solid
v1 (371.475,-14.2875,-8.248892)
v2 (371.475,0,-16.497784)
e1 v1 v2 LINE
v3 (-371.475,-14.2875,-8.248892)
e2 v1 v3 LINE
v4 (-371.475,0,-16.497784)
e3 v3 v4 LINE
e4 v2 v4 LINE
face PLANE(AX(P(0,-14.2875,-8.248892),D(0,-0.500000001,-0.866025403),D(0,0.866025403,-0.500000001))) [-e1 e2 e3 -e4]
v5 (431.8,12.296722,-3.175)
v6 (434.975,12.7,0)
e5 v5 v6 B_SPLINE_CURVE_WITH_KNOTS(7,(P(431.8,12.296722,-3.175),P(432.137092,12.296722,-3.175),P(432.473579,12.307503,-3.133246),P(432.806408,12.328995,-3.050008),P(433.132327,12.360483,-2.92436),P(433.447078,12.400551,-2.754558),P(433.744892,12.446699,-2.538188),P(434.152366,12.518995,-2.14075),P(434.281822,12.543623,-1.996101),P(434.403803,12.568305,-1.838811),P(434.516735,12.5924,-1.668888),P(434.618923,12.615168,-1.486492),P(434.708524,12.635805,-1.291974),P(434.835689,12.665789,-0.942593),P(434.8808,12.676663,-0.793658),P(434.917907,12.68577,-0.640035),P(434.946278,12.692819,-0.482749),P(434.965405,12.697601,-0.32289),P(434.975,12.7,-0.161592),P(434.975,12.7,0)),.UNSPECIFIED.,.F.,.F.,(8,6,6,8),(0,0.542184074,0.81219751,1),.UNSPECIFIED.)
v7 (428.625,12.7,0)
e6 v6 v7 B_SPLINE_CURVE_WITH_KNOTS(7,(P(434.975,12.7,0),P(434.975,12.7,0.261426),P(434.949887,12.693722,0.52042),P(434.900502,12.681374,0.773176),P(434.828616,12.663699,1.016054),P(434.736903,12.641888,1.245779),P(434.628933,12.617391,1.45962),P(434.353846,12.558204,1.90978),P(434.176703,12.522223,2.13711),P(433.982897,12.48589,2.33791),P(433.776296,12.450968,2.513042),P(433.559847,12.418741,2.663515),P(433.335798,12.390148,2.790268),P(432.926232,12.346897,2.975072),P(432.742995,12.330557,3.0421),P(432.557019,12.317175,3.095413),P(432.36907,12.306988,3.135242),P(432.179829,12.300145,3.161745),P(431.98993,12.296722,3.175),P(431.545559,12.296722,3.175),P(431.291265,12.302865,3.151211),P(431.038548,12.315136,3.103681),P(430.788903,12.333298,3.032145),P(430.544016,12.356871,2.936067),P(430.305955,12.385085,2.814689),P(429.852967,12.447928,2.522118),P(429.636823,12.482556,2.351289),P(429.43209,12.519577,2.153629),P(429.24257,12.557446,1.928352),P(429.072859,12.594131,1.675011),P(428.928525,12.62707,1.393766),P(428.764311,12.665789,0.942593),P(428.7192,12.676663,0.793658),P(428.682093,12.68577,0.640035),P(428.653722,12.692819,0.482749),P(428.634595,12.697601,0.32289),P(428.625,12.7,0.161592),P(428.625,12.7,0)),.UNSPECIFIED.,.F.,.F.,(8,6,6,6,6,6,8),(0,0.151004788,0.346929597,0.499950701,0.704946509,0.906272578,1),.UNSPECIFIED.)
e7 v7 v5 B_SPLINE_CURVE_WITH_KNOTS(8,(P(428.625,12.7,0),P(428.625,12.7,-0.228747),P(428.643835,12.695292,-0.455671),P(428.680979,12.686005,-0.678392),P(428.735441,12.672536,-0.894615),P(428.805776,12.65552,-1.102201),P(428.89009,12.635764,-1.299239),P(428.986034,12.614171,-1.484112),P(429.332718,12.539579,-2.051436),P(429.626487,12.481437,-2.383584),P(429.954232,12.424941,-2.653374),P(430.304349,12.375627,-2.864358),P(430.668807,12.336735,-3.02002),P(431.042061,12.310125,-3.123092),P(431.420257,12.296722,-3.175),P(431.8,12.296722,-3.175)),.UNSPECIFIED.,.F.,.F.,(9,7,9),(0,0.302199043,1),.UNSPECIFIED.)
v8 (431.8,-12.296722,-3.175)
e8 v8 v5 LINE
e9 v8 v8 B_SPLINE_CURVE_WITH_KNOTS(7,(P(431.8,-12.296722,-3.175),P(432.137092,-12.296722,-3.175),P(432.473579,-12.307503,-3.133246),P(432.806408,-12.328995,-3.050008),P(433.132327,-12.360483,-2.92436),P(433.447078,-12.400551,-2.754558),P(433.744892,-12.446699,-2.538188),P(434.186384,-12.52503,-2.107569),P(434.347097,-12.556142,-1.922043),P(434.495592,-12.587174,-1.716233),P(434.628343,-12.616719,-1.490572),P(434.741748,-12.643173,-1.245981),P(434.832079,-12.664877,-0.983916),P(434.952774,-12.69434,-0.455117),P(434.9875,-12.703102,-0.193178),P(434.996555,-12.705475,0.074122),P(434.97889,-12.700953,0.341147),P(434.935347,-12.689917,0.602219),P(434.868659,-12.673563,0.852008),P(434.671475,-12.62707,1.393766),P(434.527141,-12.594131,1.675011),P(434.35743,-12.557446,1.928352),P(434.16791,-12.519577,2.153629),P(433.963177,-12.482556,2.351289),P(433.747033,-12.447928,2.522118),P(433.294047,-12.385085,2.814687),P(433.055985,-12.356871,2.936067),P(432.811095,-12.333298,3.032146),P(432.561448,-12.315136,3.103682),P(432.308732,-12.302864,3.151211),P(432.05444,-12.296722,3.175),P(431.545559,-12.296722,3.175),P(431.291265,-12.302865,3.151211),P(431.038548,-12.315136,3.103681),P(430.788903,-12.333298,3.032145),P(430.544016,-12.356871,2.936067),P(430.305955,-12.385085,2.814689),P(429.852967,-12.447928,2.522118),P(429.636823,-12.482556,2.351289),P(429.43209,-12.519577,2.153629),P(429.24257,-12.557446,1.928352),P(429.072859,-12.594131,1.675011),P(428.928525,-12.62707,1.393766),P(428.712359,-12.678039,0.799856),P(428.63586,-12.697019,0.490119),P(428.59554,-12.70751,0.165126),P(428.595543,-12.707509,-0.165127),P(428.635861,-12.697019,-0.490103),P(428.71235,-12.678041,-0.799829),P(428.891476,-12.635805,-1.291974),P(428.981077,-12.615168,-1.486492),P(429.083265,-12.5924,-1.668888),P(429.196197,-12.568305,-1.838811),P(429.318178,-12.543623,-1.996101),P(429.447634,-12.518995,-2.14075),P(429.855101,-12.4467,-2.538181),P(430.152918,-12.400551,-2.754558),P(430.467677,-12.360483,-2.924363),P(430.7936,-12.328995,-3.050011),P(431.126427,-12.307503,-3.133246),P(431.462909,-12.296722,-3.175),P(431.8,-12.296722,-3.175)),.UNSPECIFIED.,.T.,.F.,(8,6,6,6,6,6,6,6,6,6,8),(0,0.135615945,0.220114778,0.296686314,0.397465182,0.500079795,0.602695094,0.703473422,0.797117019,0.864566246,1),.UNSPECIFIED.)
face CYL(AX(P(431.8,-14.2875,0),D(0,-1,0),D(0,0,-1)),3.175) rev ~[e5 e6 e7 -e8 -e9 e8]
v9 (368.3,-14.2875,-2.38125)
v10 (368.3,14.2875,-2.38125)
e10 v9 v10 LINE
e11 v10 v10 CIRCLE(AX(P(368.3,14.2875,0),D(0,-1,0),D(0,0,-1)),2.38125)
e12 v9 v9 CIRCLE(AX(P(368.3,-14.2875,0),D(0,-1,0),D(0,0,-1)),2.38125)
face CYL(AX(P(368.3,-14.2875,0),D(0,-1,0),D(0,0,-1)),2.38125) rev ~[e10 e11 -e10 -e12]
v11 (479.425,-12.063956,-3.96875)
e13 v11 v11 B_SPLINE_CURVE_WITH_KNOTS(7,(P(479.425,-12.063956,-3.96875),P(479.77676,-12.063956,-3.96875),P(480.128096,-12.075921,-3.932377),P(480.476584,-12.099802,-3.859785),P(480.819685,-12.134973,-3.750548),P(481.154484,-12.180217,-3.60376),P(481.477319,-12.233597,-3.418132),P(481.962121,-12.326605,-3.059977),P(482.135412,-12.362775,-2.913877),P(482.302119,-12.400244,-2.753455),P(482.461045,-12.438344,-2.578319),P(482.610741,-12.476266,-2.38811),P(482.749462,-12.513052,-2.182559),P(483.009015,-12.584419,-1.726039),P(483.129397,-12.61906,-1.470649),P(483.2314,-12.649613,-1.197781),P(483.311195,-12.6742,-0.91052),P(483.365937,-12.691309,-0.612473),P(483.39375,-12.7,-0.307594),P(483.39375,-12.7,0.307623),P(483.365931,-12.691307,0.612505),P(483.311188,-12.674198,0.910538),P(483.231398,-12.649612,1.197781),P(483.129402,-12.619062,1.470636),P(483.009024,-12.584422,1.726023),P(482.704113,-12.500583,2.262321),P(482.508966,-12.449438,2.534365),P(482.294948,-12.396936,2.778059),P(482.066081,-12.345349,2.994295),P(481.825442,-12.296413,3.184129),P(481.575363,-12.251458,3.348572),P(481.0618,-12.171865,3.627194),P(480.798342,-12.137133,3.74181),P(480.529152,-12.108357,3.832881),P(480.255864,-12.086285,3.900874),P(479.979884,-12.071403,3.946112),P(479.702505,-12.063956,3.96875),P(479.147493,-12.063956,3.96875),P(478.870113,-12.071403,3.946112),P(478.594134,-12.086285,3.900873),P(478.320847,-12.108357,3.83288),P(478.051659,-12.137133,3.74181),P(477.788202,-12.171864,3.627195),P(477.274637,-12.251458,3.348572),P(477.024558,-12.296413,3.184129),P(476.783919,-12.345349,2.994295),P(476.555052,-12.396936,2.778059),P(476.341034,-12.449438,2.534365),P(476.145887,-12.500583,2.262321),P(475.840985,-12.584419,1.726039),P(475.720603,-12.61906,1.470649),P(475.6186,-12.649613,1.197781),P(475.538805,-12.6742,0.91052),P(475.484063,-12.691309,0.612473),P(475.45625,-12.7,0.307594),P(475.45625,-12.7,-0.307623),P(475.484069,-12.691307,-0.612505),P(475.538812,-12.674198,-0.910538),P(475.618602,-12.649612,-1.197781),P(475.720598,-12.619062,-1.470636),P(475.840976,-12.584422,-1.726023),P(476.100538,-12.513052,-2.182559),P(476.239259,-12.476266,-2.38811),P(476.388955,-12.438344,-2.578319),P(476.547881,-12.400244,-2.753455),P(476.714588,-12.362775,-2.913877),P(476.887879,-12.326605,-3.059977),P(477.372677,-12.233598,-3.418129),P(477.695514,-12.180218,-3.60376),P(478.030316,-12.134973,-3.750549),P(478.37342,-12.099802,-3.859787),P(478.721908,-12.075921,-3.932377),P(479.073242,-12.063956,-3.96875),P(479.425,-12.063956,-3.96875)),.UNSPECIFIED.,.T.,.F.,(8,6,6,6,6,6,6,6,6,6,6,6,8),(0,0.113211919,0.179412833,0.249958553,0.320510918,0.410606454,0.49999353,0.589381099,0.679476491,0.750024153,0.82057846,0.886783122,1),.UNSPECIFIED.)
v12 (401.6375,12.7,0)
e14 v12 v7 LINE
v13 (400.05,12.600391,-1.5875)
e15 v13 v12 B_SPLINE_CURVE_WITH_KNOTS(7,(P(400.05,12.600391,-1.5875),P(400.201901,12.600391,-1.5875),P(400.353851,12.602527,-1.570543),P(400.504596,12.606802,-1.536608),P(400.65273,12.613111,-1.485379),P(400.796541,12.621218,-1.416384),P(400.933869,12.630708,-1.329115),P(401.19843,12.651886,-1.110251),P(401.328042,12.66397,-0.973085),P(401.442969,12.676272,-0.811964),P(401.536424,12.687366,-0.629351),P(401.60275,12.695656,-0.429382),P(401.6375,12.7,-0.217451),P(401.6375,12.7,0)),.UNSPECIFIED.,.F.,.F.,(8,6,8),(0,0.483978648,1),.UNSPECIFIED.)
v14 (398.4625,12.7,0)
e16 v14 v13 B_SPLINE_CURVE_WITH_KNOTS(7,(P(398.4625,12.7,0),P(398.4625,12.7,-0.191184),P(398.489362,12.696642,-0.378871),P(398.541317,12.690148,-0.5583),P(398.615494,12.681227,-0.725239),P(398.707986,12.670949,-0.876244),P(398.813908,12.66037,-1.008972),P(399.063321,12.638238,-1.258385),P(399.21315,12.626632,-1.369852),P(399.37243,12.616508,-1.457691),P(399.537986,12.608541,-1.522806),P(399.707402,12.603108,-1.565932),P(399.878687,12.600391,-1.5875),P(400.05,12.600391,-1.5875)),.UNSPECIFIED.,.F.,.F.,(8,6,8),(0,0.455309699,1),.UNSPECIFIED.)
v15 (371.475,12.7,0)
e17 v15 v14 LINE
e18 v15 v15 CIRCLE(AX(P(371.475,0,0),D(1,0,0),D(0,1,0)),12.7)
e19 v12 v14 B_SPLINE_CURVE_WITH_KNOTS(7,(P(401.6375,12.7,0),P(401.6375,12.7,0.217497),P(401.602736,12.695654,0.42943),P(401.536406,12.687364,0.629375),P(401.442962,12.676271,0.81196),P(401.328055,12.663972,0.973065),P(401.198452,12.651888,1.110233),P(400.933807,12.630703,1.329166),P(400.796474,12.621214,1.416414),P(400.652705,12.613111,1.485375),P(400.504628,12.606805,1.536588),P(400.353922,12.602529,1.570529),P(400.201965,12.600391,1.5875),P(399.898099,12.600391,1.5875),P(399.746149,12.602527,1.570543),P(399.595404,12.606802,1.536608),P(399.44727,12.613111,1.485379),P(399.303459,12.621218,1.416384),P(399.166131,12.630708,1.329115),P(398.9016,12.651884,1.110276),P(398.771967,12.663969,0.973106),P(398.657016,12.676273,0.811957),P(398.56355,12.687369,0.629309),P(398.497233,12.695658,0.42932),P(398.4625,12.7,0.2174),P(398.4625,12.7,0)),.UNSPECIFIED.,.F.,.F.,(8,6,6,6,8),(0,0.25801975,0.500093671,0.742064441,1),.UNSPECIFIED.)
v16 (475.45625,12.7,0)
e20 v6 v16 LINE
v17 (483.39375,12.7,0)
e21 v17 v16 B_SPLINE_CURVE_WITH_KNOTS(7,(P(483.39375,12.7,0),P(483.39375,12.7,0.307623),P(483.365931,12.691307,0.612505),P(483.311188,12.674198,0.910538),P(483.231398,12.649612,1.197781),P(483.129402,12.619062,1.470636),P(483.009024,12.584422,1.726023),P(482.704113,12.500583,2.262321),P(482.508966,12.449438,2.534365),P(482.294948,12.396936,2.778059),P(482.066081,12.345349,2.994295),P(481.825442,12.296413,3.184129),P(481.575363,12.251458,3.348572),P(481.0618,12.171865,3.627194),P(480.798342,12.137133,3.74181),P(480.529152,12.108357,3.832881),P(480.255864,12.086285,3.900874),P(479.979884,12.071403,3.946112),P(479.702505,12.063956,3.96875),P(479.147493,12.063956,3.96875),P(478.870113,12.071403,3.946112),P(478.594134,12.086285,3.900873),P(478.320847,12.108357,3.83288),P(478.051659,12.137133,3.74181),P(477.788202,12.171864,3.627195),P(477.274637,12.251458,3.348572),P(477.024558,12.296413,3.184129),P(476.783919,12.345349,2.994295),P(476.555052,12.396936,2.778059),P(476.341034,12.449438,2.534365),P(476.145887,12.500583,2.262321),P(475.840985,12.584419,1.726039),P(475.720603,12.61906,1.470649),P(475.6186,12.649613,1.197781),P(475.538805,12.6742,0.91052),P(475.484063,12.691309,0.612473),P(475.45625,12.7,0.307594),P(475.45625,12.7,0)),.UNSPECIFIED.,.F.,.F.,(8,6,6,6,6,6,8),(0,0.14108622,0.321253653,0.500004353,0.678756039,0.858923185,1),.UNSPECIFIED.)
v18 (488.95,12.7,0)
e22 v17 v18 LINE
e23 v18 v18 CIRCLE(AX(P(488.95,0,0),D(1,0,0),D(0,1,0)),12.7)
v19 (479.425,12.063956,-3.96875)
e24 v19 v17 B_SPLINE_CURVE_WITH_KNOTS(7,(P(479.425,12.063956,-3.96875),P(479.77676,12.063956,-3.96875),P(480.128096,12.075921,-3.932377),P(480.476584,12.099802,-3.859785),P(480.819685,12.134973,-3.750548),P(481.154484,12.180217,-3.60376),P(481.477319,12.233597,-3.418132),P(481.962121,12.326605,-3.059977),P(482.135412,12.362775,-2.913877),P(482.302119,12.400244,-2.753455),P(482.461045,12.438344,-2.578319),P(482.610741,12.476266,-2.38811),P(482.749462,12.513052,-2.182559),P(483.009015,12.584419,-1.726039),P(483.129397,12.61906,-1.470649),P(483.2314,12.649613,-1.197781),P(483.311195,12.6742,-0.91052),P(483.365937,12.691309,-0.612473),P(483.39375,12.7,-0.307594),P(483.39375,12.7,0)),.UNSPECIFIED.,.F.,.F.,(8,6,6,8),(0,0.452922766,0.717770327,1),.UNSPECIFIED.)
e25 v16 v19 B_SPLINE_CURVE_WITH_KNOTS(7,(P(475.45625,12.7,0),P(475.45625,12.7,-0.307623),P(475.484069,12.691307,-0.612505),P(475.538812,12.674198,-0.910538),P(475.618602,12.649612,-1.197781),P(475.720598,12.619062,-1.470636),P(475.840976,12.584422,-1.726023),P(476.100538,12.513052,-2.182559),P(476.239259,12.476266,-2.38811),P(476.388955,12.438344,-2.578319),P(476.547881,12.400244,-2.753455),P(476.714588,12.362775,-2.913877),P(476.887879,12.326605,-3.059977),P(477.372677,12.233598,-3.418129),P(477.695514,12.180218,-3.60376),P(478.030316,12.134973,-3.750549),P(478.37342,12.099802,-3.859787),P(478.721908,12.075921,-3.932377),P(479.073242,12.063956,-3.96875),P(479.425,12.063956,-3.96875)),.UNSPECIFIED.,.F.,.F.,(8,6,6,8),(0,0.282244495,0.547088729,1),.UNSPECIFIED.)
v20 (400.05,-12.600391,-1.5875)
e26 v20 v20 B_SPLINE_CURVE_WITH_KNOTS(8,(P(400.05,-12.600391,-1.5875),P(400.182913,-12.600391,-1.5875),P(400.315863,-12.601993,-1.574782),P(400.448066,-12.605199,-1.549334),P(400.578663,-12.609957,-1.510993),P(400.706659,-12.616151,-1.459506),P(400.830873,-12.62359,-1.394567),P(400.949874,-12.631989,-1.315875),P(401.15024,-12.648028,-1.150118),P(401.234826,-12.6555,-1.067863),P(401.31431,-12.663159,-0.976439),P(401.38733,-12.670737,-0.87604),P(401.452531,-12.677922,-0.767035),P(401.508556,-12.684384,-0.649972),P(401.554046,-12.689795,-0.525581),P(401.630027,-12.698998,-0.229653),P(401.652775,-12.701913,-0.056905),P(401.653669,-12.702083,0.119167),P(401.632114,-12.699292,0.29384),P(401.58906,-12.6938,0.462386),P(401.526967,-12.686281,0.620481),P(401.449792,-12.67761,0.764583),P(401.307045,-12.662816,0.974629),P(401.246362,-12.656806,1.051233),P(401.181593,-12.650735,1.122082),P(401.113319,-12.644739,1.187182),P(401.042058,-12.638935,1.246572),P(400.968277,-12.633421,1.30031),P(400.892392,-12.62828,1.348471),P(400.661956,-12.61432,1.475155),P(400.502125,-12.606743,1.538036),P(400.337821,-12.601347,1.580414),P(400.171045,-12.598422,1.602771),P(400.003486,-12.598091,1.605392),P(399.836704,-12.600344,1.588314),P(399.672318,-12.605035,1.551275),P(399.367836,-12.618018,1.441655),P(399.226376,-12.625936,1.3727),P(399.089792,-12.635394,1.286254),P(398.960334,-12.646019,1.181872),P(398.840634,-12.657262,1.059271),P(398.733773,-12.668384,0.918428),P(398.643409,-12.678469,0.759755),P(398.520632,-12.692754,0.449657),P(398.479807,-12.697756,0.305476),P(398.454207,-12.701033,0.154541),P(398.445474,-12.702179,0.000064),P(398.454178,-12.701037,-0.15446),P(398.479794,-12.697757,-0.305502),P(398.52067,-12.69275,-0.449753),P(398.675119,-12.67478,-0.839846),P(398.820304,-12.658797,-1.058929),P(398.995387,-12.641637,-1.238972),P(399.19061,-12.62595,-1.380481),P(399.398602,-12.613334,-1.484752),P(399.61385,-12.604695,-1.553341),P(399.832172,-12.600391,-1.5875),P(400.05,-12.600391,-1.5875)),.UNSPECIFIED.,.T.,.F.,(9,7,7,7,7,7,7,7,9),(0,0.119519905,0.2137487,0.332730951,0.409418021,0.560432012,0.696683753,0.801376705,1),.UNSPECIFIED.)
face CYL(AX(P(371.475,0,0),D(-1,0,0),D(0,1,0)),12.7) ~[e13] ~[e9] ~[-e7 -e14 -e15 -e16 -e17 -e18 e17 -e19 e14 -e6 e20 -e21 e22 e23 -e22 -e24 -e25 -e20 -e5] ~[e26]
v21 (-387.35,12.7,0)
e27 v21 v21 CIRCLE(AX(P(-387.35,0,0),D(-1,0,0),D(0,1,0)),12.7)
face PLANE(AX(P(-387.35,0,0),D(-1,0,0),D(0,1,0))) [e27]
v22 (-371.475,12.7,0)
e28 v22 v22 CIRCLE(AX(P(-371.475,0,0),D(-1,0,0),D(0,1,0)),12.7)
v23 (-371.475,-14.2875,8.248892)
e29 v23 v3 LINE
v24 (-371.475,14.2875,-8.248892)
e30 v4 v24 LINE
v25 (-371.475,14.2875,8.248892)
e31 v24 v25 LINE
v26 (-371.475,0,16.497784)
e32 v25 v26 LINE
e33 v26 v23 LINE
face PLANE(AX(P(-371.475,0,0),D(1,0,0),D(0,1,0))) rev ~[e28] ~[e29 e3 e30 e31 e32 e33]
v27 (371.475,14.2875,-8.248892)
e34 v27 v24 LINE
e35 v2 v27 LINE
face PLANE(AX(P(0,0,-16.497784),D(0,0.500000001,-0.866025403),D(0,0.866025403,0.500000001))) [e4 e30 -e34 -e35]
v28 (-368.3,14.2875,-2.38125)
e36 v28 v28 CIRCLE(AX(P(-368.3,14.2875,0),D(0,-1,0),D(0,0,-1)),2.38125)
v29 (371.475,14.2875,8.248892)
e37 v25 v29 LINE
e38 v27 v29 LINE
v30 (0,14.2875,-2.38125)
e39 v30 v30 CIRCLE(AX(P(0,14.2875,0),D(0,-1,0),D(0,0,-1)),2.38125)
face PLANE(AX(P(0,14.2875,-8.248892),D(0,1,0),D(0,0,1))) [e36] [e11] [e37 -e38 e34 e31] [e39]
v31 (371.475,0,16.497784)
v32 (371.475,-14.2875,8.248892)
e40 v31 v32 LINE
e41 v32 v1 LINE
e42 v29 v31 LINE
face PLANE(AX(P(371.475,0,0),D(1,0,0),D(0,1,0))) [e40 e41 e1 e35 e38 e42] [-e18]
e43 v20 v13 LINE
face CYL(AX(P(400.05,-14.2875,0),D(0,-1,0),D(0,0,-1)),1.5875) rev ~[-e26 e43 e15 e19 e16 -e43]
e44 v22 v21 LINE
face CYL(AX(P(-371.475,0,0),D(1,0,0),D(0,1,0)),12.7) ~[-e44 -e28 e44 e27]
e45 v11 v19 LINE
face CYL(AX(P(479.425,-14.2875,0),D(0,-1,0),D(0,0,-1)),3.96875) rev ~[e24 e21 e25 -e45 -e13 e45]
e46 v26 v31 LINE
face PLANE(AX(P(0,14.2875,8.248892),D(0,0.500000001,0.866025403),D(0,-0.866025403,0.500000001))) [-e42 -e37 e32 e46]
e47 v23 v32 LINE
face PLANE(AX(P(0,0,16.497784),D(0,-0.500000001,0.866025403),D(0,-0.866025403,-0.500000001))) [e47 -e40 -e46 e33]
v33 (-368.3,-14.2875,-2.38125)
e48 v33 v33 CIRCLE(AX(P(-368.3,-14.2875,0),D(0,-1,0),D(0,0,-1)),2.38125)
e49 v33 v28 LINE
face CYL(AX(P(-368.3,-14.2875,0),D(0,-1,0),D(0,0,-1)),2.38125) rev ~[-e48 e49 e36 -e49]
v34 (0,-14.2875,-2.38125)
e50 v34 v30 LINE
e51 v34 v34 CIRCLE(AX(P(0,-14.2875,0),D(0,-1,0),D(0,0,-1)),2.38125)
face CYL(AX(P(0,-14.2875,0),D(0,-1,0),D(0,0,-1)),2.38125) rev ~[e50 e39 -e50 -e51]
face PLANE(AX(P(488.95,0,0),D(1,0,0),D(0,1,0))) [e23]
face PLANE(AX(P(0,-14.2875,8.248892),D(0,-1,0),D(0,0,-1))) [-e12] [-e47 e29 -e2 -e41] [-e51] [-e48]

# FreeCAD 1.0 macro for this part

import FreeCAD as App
import Part
import Sketcher
from FreeCAD import Vector
Q = App.Units.Quantity

doc = App.newDocument("Part")
body = doc.addObject("PartDesign::Body", "Body")

# Sketch on YZ plane
sketch1 = body.newObject("Sketcher::SketchObject", "Sketch")
sketch1.AttachmentSupport = (doc.getObject("YZ_Plane"), [""])
sketch1.MapMode = "FlatFace"
sketch1.addGeometry(Part.LineSegment(Vector(14, -8, 0), Vector(14, 8, 0)), False)
sketch1.addGeometry(Part.LineSegment(Vector(14, 8, 0), Vector(0, 16, 0)), False)
sketch1.addGeometry(Part.LineSegment(Vector(0, 16, 0), Vector(-14, 8, 0)), False)
sketch1.addGeometry(Part.LineSegment(Vector(-14, 8, 0), Vector(-14, -8, 0)), False)
sketch1.addGeometry(Part.LineSegment(Vector(-14, -8, 0), Vector(0, -16, 0)), False)
sketch1.addGeometry(Part.LineSegment(Vector(0, -16, 0), Vector(14, -8, 0)), False)
sketch1.addConstraint(Sketcher.Constraint("Coincident", 0, 2, 1, 1))
sketch1.addConstraint(Sketcher.Constraint("Coincident", 1, 2, 2, 1))
sketch1.addConstraint(Sketcher.Constraint("Coincident", 2, 2, 3, 1))
sketch1.addConstraint(Sketcher.Constraint("Coincident", 3, 2, 4, 1))
sketch1.addConstraint(Sketcher.Constraint("Coincident", 4, 2, 5, 1))
sketch1.addConstraint(Sketcher.Constraint("Coincident", 5, 2, 0, 1))
sketch1.addConstraint(Sketcher.Constraint("Vertical", 0))
sketch1.addConstraint(Sketcher.Constraint("Vertical", 3))
sketch1.addConstraint(Sketcher.Constraint("Symmetric", 0, 2, 3, 2, -1, 1))
sketch1.addConstraint(Sketcher.Constraint("Symmetric", 1, 2, 4, 2, -1, 1))
sketch1.addConstraint(Sketcher.Constraint("PointOnObject", 1, 2, -2))
sketch1.addConstraint(Sketcher.Constraint("Parallel", 2, 5))
sketch1.addConstraint(Sketcher.Constraint("Horizontal", 0, 2, 2, 2))
sketch1.addConstraint(Sketcher.Constraint("Angle", 1, Q("150 deg")))
sketch1.addConstraint(Sketcher.Constraint("DistanceX", -1, 1, 0, 2, Q("0.5625 in")))
sketch1.addConstraint(Sketcher.Constraint("DistanceY", 0, 1, 0, 2, 16.497784))
pad1 = body.newObject("PartDesign::Pad", "Pad")
pad1.Profile = sketch1
pad1.Length = Q("29.25 in")
pad1.Midplane = True

# Sketch on YZ plane
sketch2 = body.newObject("Sketcher::SketchObject", "Sketch001")
sketch2.AttachmentSupport = (doc.getObject("YZ_Plane"), [""])
sketch2.MapMode = "FlatFace"
sketch2.AttachmentOffset = App.Placement(Vector(0, 0, 14.625 * 25.4), App.Rotation())
sketch2.addGeometry(Part.Circle(Vector(0, 0, 0), Vector(0, 0, 1), 13), False)
sketch2.addConstraint(Sketcher.Constraint("Coincident", 0, 3, -1, 1))
sketch2.addConstraint(Sketcher.Constraint("Diameter", 0, Q("1 in")))
pad2 = body.newObject("PartDesign::Pad", "Pad001")
pad2.Profile = sketch2
pad2.Length = Q("4.625 in")

# Sketch on YZ plane
sketch3 = body.newObject("Sketcher::SketchObject", "Sketch002")
sketch3.AttachmentSupport = (doc.getObject("YZ_Plane"), [""])
sketch3.MapMode = "FlatFace"
sketch3.AttachmentOffset = App.Placement(Vector(0, 0, -14.625 * 25.4), App.Rotation())
sketch3.addGeometry(Part.Circle(Vector(0, 0, 0), Vector(0, 0, 1), 13), False)
sketch3.addConstraint(Sketcher.Constraint("Coincident", 0, 3, -1, 1))
sketch3.addConstraint(Sketcher.Constraint("Diameter", 0, Q("1 in")))
pad3 = body.newObject("PartDesign::Pad", "Pad002")
pad3.Profile = sketch3
pad3.Length = Q("0.625 in")
pad3.Reversed = True

# Sketch on XZ plane
sketch4 = body.newObject("Sketcher::SketchObject", "Sketch003")
sketch4.AttachmentSupport = (doc.getObject("XZ_Plane"), [""])
sketch4.MapMode = "FlatFace"
sketch4.AttachmentOffset = App.Placement(Vector(0, 0, 0.5625 * 25.4), App.Rotation())
sketch4.addGeometry(Part.Circle(Vector(0, 0, 0), Vector(0, 0, 1), 2.4), False)
sketch4.addGeometry(Part.Circle(Vector(368.3, 0, 0), Vector(0, 0, 1), 2.4), False)
sketch4.addGeometry(Part.Circle(Vector(-368.3, 0, 0), Vector(0, 0, 1), 2.4), False)
sketch4.addGeometry(Part.Circle(Vector(400.1, 0, 0), Vector(0, 0, 1), 1.6), False)
sketch4.addGeometry(Part.Circle(Vector(479.4, 0, 0), Vector(0, 0, 1), 4), False)
sketch4.addGeometry(Part.Circle(Vector(431.8, 0, 0), Vector(0, 0, 1), 3.2), False)
sketch4.addConstraint(Sketcher.Constraint("Coincident", 0, 3, -1, 1))
sketch4.addConstraint(Sketcher.Constraint("Equal", 0, 1))
sketch4.addConstraint(Sketcher.Constraint("Equal", 1, 2))
sketch4.addConstraint(Sketcher.Constraint("Symmetric", 1, 3, 2, 3, -1, 1))
sketch4.addConstraint(Sketcher.Constraint("PointOnObject", 1, 3, -1))
sketch4.addConstraint(Sketcher.Constraint("PointOnObject", 3, 3, -1))
sketch4.addConstraint(Sketcher.Constraint("PointOnObject", 4, 3, -1))
sketch4.addConstraint(Sketcher.Constraint("PointOnObject", 5, 3, -1))
sketch4.addConstraint(Sketcher.Constraint("Diameter", 5, Q("0.25 in")))
sketch4.addConstraint(Sketcher.Constraint("Diameter", 0, Q("0.1875 in")))
sketch4.addConstraint(Sketcher.Constraint("Diameter", 3, Q("0.125 in")))
sketch4.addConstraint(Sketcher.Constraint("Diameter", 4, Q("0.3125 in")))
sketch4.addConstraint(Sketcher.Constraint("DistanceX", -1, 1, 5, 3, Q("17 in")))
sketch4.addConstraint(Sketcher.Constraint("DistanceX", 2, 3, 1, 3, Q("29 in")))
sketch4.addConstraint(Sketcher.Constraint("DistanceX", -1, 1, 3, 3, Q("15.75 in")))
sketch4.addConstraint(Sketcher.Constraint("DistanceX", -1, 1, 4, 3, Q("18.875 in")))
pocket1 = body.newObject("PartDesign::Pocket", "Pocket")
pocket1.Profile = sketch4
pocket1.Length = Q("2 in")

doc.recompute()
